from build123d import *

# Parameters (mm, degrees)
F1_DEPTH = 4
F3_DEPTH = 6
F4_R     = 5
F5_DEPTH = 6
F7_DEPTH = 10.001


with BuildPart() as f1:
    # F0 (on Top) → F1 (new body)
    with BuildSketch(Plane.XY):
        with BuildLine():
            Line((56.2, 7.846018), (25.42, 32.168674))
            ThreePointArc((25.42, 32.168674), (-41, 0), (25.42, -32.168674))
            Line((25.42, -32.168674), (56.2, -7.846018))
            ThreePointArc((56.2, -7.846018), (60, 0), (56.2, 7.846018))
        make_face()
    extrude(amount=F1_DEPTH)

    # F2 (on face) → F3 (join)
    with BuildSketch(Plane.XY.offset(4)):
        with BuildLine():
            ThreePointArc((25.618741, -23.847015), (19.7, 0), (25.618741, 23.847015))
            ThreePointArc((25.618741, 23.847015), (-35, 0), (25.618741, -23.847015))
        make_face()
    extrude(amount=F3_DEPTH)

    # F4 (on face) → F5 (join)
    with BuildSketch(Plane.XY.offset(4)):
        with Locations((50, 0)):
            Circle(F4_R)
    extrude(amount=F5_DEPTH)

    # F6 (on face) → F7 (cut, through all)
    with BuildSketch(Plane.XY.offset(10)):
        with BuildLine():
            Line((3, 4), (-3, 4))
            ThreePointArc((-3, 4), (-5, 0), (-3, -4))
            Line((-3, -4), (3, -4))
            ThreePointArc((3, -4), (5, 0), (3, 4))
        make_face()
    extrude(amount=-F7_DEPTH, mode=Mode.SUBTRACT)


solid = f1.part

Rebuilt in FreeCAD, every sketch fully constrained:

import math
import FreeCAD as App
import Part
import Sketcher

V = App.Vector
Q = App.Units.Quantity

doc = App.newDocument("Part")
body = doc.addObject("PartDesign::Body", "Body")

# Sketch on XY plane
sketch1 = body.newObject("Sketcher::SketchObject", "Sketch")
sketch1.AttachmentSupport = (doc.getObject("XY_Plane"), [""])
sketch1.MapMode = "FlatFace"
sketch1.addGeometry(Part.LineSegment(V(56, 8, 0), V(25, 32, 0)), False)
sketch1.addGeometry(Part.ArcOfCircle(Part.Circle(V(0, 0, 0), V(0, 0, 1), 41), math.radians(52), math.radians(308)), False)
sketch1.addGeometry(Part.LineSegment(V(25, -32, 0), V(56, -8, 0)), False)
sketch1.addGeometry(Part.ArcOfCircle(Part.Circle(V(50, 0, 0), V(0, 0, 1), 10), math.radians(-52), math.radians(52)), False)
sketch1.addConstraint(Sketcher.Constraint("Tangent", 0, 2, 1, 1))
sketch1.addConstraint(Sketcher.Constraint("Tangent", 1, 2, 2, 1))
sketch1.addConstraint(Sketcher.Constraint("Tangent", 2, 2, 3, 1))
sketch1.addConstraint(Sketcher.Constraint("Tangent", 3, 2, 0, 1))
sketch1.addConstraint(Sketcher.Constraint("Coincident", 1, 3, -1, 1))
sketch1.addConstraint(Sketcher.Constraint("PointOnObject", 3, 3, -1))
sketch1.addConstraint(Sketcher.Constraint("Radius", 1, Q("41 mm")))
sketch1.addConstraint(Sketcher.Constraint("Radius", 3, Q("10 mm")))
sketch1.addConstraint(Sketcher.Constraint("DistanceX", -1, 1, 3, 3, Q("50 mm")))
pad1 = body.newObject("PartDesign::Pad", "Pad")
pad1.Profile = sketch1
pad1.Length = 4

# Sketch on XY plane
sketch2 = body.newObject("Sketcher::SketchObject", "Sketch001")
sketch2.AttachmentSupport = (doc.getObject("XY_Plane"), [""])
sketch2.MapMode = "FlatFace"
sketch2.AttachmentOffset = App.Placement(V(0, 0, 4), App.Rotation())
sketch2.addGeometry(Part.ArcOfCircle(Part.Circle(V(71, 0, 0), V(0, 0, 1), 51), math.radians(152), math.radians(208)), False)
sketch2.addGeometry(Part.ArcOfCircle(Part.Circle(V(0, 0, 0), V(0, 0, 1), 35), math.radians(43), math.radians(317)), False)
sketch2.addConstraint(Sketcher.Constraint("Coincident", 0, 1, 1, 1))
sketch2.addConstraint(Sketcher.Constraint("Coincident", 1, 2, 0, 2))
sketch2.addConstraint(Sketcher.Constraint("Coincident", 1, 3, -1, 1))
sketch2.addConstraint(Sketcher.Constraint("PointOnObject", 0, 3, -1))
sketch2.addConstraint(Sketcher.Constraint("Radius", 1, Q("35 mm")))
sketch2.addConstraint(Sketcher.Constraint("Radius", 0, Q("51.000003 mm")))
sketch2.addConstraint(Sketcher.Constraint("DistanceX", -1, 1, 0, 1, Q("25.618741 mm")))
pad2 = body.newObject("PartDesign::Pad", "Pad001")
pad2.Profile = sketch2
pad2.Length = 6

# Sketch on XY plane
sketch3 = body.newObject("Sketcher::SketchObject", "Sketch002")
sketch3.AttachmentSupport = (doc.getObject("XY_Plane"), [""])
sketch3.MapMode = "FlatFace"
sketch3.AttachmentOffset = App.Placement(V(0, 0, 4), App.Rotation())
sketch3.addGeometry(Part.Circle(V(50, 0, 0), V(0, 0, 1), 5), False)
sketch3.addConstraint(Sketcher.Constraint("PointOnObject", 0, 3, -1))
sketch3.addConstraint(Sketcher.Constraint("Diameter", 0, Q("10 mm")))
sketch3.addConstraint(Sketcher.Constraint("DistanceX", -1, 1, 0, 3, Q("50 mm")))
pad3 = body.newObject("PartDesign::Pad", "Pad002")
pad3.Profile = sketch3
pad3.Length = 6

# Sketch on XY plane
sketch4 = body.newObject("Sketcher::SketchObject", "Sketch003")
sketch4.AttachmentSupport = (doc.getObject("XY_Plane"), [""])
sketch4.MapMode = "FlatFace"
sketch4.AttachmentOffset = App.Placement(V(0, 0, 10), App.Rotation())
sketch4.addGeometry(Part.LineSegment(V(3, 4, 0), V(-3, 4, 0)), False)
sketch4.addGeometry(Part.ArcOfCircle(Part.Circle(V(0, 0, 0), V(0, 0, 1), 5), math.radians(127), math.radians(233)), False)
sketch4.addGeometry(Part.LineSegment(V(-3, -4, 0), V(3, -4, 0)), False)
sketch4.addGeometry(Part.ArcOfCircle(Part.Circle(V(0, 0, 0), V(0, 0, 1), 5), math.radians(-53), math.radians(53)), False)
sketch4.addConstraint(Sketcher.Constraint("Coincident", 0, 2, 1, 1))
sketch4.addConstraint(Sketcher.Constraint("Coincident", 1, 2, 2, 1))
sketch4.addConstraint(Sketcher.Constraint("Coincident", 2, 2, 3, 1))
sketch4.addConstraint(Sketcher.Constraint("Coincident", 3, 2, 0, 1))
sketch4.addConstraint(Sketcher.Constraint("Horizontal", 0))
sketch4.addConstraint(Sketcher.Constraint("Horizontal", 2))
sketch4.addConstraint(Sketcher.Constraint("Coincident", 1, 3, -1, 1))
sketch4.addConstraint(Sketcher.Constraint("Coincident", 3, 3, -1, 1))
sketch4.addConstraint(Sketcher.Constraint("Equal", 1, 3))
sketch4.addConstraint(Sketcher.Constraint("Vertical", 0, 2, 1, 2))
sketch4.addConstraint(Sketcher.Constraint("Radius", 1, Q("5 mm")))
sketch4.addConstraint(Sketcher.Constraint("DistanceX", 0, 2, 0, 1, Q("6 mm")))
pocket1 = body.newObject("PartDesign::Pocket", "Pocket")
pocket1.Profile = sketch4
pocket1.Type = "ThroughAll"

doc.recompute()
